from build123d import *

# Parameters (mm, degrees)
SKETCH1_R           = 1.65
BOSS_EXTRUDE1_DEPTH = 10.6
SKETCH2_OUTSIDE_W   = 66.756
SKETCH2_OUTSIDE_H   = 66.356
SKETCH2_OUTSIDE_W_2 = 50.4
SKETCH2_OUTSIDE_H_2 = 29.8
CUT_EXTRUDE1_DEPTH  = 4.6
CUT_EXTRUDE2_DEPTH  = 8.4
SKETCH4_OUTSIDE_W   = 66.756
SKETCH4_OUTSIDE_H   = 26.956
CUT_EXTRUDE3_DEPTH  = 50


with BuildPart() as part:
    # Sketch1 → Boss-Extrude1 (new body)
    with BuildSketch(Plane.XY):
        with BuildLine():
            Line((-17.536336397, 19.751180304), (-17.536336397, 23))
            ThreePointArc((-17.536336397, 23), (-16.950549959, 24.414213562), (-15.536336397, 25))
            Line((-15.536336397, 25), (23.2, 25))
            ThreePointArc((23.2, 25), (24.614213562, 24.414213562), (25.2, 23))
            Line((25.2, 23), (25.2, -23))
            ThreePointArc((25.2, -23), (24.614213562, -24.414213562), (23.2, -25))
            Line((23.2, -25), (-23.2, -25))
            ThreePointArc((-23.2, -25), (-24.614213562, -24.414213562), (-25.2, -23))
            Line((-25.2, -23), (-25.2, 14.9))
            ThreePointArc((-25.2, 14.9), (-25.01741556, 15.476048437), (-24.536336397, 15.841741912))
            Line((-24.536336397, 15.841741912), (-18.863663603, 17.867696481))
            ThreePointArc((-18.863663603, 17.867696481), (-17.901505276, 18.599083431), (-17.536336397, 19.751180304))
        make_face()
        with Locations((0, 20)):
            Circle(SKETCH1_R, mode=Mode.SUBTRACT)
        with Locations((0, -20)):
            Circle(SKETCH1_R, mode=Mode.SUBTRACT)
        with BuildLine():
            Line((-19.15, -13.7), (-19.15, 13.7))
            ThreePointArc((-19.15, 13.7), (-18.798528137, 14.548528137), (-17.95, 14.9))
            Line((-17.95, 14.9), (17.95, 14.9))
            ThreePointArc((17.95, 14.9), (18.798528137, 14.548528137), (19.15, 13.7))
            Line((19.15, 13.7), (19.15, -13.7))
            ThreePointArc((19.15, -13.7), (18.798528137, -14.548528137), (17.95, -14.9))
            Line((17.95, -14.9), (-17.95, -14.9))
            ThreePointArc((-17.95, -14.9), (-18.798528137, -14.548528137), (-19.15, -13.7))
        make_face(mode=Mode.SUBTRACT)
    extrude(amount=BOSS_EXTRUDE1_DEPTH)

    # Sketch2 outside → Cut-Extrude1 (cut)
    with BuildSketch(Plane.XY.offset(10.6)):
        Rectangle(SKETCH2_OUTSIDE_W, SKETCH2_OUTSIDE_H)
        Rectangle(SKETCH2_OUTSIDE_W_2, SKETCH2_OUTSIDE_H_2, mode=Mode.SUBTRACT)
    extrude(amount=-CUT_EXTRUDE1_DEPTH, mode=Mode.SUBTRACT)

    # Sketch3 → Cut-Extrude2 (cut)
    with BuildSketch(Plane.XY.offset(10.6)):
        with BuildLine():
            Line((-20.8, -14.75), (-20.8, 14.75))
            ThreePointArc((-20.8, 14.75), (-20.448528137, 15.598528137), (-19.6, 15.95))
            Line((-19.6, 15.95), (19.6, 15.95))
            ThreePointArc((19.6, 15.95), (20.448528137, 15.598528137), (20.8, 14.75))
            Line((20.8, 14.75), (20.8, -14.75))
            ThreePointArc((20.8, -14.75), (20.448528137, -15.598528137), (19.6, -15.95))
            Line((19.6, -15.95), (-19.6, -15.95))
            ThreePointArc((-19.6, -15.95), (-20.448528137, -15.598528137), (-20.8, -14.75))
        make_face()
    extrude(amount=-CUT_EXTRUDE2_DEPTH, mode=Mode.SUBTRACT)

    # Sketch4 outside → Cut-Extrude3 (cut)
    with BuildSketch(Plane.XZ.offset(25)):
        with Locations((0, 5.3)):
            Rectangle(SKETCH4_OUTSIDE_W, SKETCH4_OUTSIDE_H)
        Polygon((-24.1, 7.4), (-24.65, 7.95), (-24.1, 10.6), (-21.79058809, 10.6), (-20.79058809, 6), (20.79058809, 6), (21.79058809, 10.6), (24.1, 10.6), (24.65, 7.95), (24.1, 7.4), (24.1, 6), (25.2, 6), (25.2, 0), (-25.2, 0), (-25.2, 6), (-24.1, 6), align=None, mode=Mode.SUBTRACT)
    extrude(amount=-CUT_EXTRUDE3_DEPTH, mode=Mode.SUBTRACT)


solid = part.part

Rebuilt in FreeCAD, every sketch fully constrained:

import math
import FreeCAD as App
import Part
import Sketcher
from FreeCAD import Vector
Q = App.Units.Quantity


def add_polygon(sketch, points):
    """Adds a closed chain of lines whose ends are joined by coincident constraints."""
    first, n = sketch.GeometryCount, len(points)
    for a, b in zip(points, points[1:] + points[:1]):
        sketch.addGeometry(Part.LineSegment(App.Vector(*a, 0), App.Vector(*b, 0)), False)
    for i in range(n):
        sketch.addConstraint(Sketcher.Constraint("Coincident", first + i, 2, first + (i + 1) % n, 1))

doc = App.newDocument("Part")
params = doc.addObject("Spreadsheet::Sheet", "Params")
for row, (alias, value) in enumerate([
    ("sketch1_radius", "2 mm"),
    ("sketch1_radius2", "1 mm"),
    ("sketch1_diameter", "3.3 mm"),
    ("sketch1_radius3", "1.2 mm"),
    ("sketch1_height", "46 mm"),
    ("pad1_length", "10.6 mm"),
    ("sketch2_width", "50.4 mm"),
    ("sketch2_height", "29.8 mm"),
    ("pocket1_length", "4.6 mm"),
    ("sketch3_radius", "1.2 mm"),
    ("sketch3_width", "39.2 mm"),
    ("sketch3_height", "29.5 mm"),
    ("pocket2_length", "8.4 mm"),
    ("sketch4_height", "6 mm"),
    ("sketch4_width", "1.1 mm"),
    ("sketch4_width2", "50.4 mm"),
    ("sketch4_height2", "1.4 mm"),
    ("pocket3_length", "50 mm"),
], start=1):
    params.set(f"A{row}", alias)
    params.set(f"B{row}", "=" + value)
    params.setAlias(f"B{row}", alias)

body = doc.addObject("PartDesign::Body", "Body")

sketch1 = body.newObject("Sketcher::SketchObject", "Sketch")
sketch1.AttachmentSupport = (doc.getObject("XY_Plane"), [""])
sketch1.MapMode = "FlatFace"
sketch1.addGeometry(Part.LineSegment(Vector(-17.5, 23, 0), Vector(-17.5, 19.8, 0)), False)
sketch1.addGeometry(Part.ArcOfCircle(Part.Circle(Vector(-19.5, 19.8, 0), Vector(0, 0, 1), 2), math.radians(-70), math.radians(0)), False)
sketch1.addGeometry(Part.LineSegment(Vector(-18.9, 17.9, 0), Vector(-24.5, 15.8, 0)), False)
sketch1.addGeometry(Part.ArcOfCircle(Part.Circle(Vector(-24.2, 14.9, 0), Vector(0, 0, 1), 1), math.radians(110), math.radians(180)), False)
sketch1.addGeometry(Part.LineSegment(Vector(-25.2, 14.9, 0), Vector(-25.2, -23, 0)), False)
sketch1.addGeometry(Part.ArcOfCircle(Part.Circle(Vector(-23.2, -23, 0), Vector(0, 0, 1), 2), math.radians(-180), math.radians(-90)), False)
sketch1.addGeometry(Part.LineSegment(Vector(-23.2, -25, 0), Vector(23.2, -25, 0)), False)
sketch1.addGeometry(Part.ArcOfCircle(Part.Circle(Vector(23.2, -23, 0), Vector(0, 0, 1), 2), math.radians(-90), math.radians(0)), False)
sketch1.addGeometry(Part.LineSegment(Vector(25.2, -23, 0), Vector(25.2, 23, 0)), False)
sketch1.addGeometry(Part.ArcOfCircle(Part.Circle(Vector(23.2, 23, 0), Vector(0, 0, 1), 2), math.radians(0), math.radians(90)), False)
sketch1.addGeometry(Part.LineSegment(Vector(23.2, 25, 0), Vector(-15.5, 25, 0)), False)
sketch1.addGeometry(Part.ArcOfCircle(Part.Circle(Vector(-15.5, 23, 0), Vector(0, 0, 1), 2), math.radians(90), math.radians(180)), False)
sketch1.addGeometry(Part.Circle(Vector(0, -20, 0), Vector(0, 0, 1), 1.6), False)
sketch1.addGeometry(Part.LineSegment(Vector(-19.1, -13.7, 0), Vector(-19.1, 13.7, 0)), False)
sketch1.addGeometry(Part.ArcOfCircle(Part.Circle(Vector(-17.9, 13.7, 0), Vector(0, 0, 1), 1.2), math.radians(90), math.radians(180)), False)
sketch1.addGeometry(Part.LineSegment(Vector(-17.9, 14.9, 0), Vector(17.9, 14.9, 0)), False)
sketch1.addGeometry(Part.ArcOfCircle(Part.Circle(Vector(17.9, 13.7, 0), Vector(0, 0, 1), 1.2), math.radians(0), math.radians(90)), False)
sketch1.addGeometry(Part.LineSegment(Vector(19.1, 13.7, 0), Vector(19.1, -13.7, 0)), False)
sketch1.addGeometry(Part.ArcOfCircle(Part.Circle(Vector(17.9, -13.7, 0), Vector(0, 0, 1), 1.2), math.radians(-90), math.radians(0)), False)
sketch1.addGeometry(Part.LineSegment(Vector(17.9, -14.9, 0), Vector(-17.9, -14.9, 0)), False)
sketch1.addGeometry(Part.ArcOfCircle(Part.Circle(Vector(-17.9, -13.7, 0), Vector(0, 0, 1), 1.2), math.radians(-180), math.radians(-90)), False)
sketch1.addGeometry(Part.Circle(Vector(0, 20, 0), Vector(0, 0, 1), 1.6), False)
sketch1.addConstraint(Sketcher.Constraint("Tangent", 0, 2, 1, 2))
sketch1.addConstraint(Sketcher.Constraint("Tangent", 1, 1, 2, 1))
sketch1.addConstraint(Sketcher.Constraint("Tangent", 2, 2, 3, 1))
sketch1.addConstraint(Sketcher.Constraint("Tangent", 3, 2, 4, 1))
sketch1.addConstraint(Sketcher.Constraint("Tangent", 4, 2, 5, 1))
sketch1.addConstraint(Sketcher.Constraint("Tangent", 5, 2, 6, 1))
sketch1.addConstraint(Sketcher.Constraint("Tangent", 6, 2, 7, 1))
sketch1.addConstraint(Sketcher.Constraint("Tangent", 7, 2, 8, 1))
sketch1.addConstraint(Sketcher.Constraint("Tangent", 8, 2, 9, 1))
sketch1.addConstraint(Sketcher.Constraint("Tangent", 9, 2, 10, 1))
sketch1.addConstraint(Sketcher.Constraint("Tangent", 10, 2, 11, 1))
sketch1.addConstraint(Sketcher.Constraint("Tangent", 11, 2, 0, 1))
sketch1.addConstraint(Sketcher.Constraint("Tangent", 13, 2, 14, 2))
sketch1.addConstraint(Sketcher.Constraint("Tangent", 14, 1, 15, 1))
sketch1.addConstraint(Sketcher.Constraint("Tangent", 15, 2, 16, 2))
sketch1.addConstraint(Sketcher.Constraint("Tangent", 16, 1, 17, 1))
sketch1.addConstraint(Sketcher.Constraint("Tangent", 17, 2, 18, 2))
sketch1.addConstraint(Sketcher.Constraint("Tangent", 18, 1, 19, 1))
sketch1.addConstraint(Sketcher.Constraint("Tangent", 19, 2, 20, 2))
sketch1.addConstraint(Sketcher.Constraint("Tangent", 20, 1, 13, 1))
sketch1.addConstraint(Sketcher.Constraint("Vertical", 0))
sketch1.addConstraint(Sketcher.Constraint("Vertical", 4))
sketch1.addConstraint(Sketcher.Constraint("Horizontal", 6))
sketch1.addConstraint(Sketcher.Constraint("Vertical", 8))
sketch1.addConstraint(Sketcher.Constraint("Horizontal", 10))
sketch1.addConstraint(Sketcher.Constraint("Vertical", 13))
sketch1.addConstraint(Sketcher.Constraint("Horizontal", 15))
sketch1.addConstraint(Sketcher.Constraint("Vertical", 17))
sketch1.addConstraint(Sketcher.Constraint("Horizontal", 19))
sketch1.addConstraint(Sketcher.Constraint("Equal", 1, 5))
sketch1.addConstraint(Sketcher.Constraint("Equal", 5, 7))
sketch1.addConstraint(Sketcher.Constraint("Equal", 7, 9))
sketch1.addConstraint(Sketcher.Constraint("Equal", 9, 11))
sketch1.addConstraint(Sketcher.Constraint("Equal", 14, 16))
sketch1.addConstraint(Sketcher.Constraint("Equal", 16, 18))
sketch1.addConstraint(Sketcher.Constraint("Equal", 18, 20))
sketch1.addConstraint(Sketcher.Constraint("Equal", 12, 21))
sketch1.addConstraint(Sketcher.Constraint("Symmetric", 5, 3, 9, 3, -1, 1))
sketch1.addConstraint(Sketcher.Constraint("Symmetric", 14, 3, 18, 3, -1, 1))
sketch1.addConstraint(Sketcher.Constraint("Symmetric", 12, 3, 21, 3, -1, 1))
sketch1.addConstraint(Sketcher.Constraint("PointOnObject", 12, 3, -2))
sketch1.addConstraint(Sketcher.Constraint("Horizontal", 3, 2, 14, 1))
sketch1.addConstraint(Sketcher.Constraint("Radius", 1, Q("2 mm")))
sketch1.addConstraint(Sketcher.Constraint("Radius", 3, Q("1 mm")))
sketch1.addConstraint(Sketcher.Constraint("Diameter", 12, Q("3.3 mm")))
sketch1.addConstraint(Sketcher.Constraint("Radius", 14, Q("1.2 mm")))
sketch1.addConstraint(Sketcher.Constraint("DistanceY", 8, 1, 8, 2, Q("46 mm")))
sketch1.addConstraint(Sketcher.Constraint("DistanceX", 6, 1, 6, 2, Q("46.4 mm")))
sketch1.addConstraint(Sketcher.Constraint("DistanceX", 15, 1, 15, 2, Q("35.9 mm")))
sketch1.addConstraint(Sketcher.Constraint("DistanceY", 4, 2, 4, 1, Q("37.9 mm")))
sketch1.addConstraint(Sketcher.Constraint("DistanceY", 12, 3, -1, 1, Q("20 mm")))
sketch1.addConstraint(Sketcher.Constraint("DistanceX", 2, 2, 1, 3, Q("5 mm")))
sketch1.addConstraint(Sketcher.Constraint("DistanceY", 0, 2, 0, 1, Q("3.24882 mm")))
sketch1.setExpression("Constraints[42]", "Params.sketch1_radius")
sketch1.setExpression("Constraints[43]", "Params.sketch1_radius2")
sketch1.setExpression("Constraints[44]", "Params.sketch1_diameter")
sketch1.setExpression("Constraints[45]", "Params.sketch1_radius3")
sketch1.setExpression("Constraints[46]", "Params.sketch1_height")
pad1 = body.newObject("PartDesign::Pad", "Pad")
pad1.Profile = sketch1
pad1.setExpression("Length", "Params.pad1_length")

sketch2 = body.newObject("Sketcher::SketchObject", "Sketch001")
sketch2.AttachmentSupport = (doc.getObject("XY_Plane"), [""])
sketch2.MapMode = "FlatFace"
sketch2.AttachmentOffset = App.Placement(Vector(0, 0, 10.6), App.Rotation())
add_polygon(sketch2, [(-33, 33), (-33, -33), (33, -33), (33, 33)])
add_polygon(sketch2, [(25, -15), (-25, -15), (-25, 15), (25, 15)])
sketch2.addConstraint(Sketcher.Constraint("Vertical", 0))
sketch2.addConstraint(Sketcher.Constraint("Horizontal", 1))
sketch2.addConstraint(Sketcher.Constraint("Vertical", 2))
sketch2.addConstraint(Sketcher.Constraint("Horizontal", 3))
sketch2.addConstraint(Sketcher.Constraint("Horizontal", 4))
sketch2.addConstraint(Sketcher.Constraint("Vertical", 5))
sketch2.addConstraint(Sketcher.Constraint("Horizontal", 6))
sketch2.addConstraint(Sketcher.Constraint("Vertical", 7))
sketch2.addConstraint(Sketcher.Constraint("Symmetric", 0, 2, 2, 2, -1, 1))
sketch2.addConstraint(Sketcher.Constraint("Symmetric", 4, 2, 6, 2, -1, 1))
sketch2.addConstraint(Sketcher.Constraint("DistanceX", 4, 2, 4, 1, Q("50.4 mm")))
sketch2.addConstraint(Sketcher.Constraint("DistanceY", 5, 1, 5, 2, Q("29.8 mm")))
sketch2.addConstraint(Sketcher.Constraint("DistanceX", 1, 1, 1, 2, Q("66.756 mm")))
sketch2.addConstraint(Sketcher.Constraint("DistanceY", 0, 2, 0, 1, Q("66.356 mm")))
sketch2.setExpression("Constraints[18]", "Params.sketch2_width")
sketch2.setExpression("Constraints[19]", "Params.sketch2_height")
pocket1 = body.newObject("PartDesign::Pocket", "Pocket")
pocket1.Profile = sketch2
pocket1.setExpression("Length", "Params.pocket1_length")

sketch3 = body.newObject("Sketcher::SketchObject", "Sketch002")
sketch3.AttachmentSupport = (doc.getObject("XY_Plane"), [""])
sketch3.MapMode = "FlatFace"
sketch3.AttachmentOffset = App.Placement(Vector(0, 0, 10.6), App.Rotation())
sketch3.addGeometry(Part.LineSegment(Vector(-20.8, 14.8, 0), Vector(-20.8, -14.8, 0)), False)
sketch3.addGeometry(Part.ArcOfCircle(Part.Circle(Vector(-19.6, -14.7, 0), Vector(0, 0, 1), 1.2), math.radians(-180), math.radians(-90)), False)
sketch3.addGeometry(Part.LineSegment(Vector(-19.6, -15.9, 0), Vector(19.6, -15.9, 0)), False)
sketch3.addGeometry(Part.ArcOfCircle(Part.Circle(Vector(19.6, -14.7, 0), Vector(0, 0, 1), 1.2), math.radians(-90), math.radians(0)), False)
sketch3.addGeometry(Part.LineSegment(Vector(20.8, -14.8, 0), Vector(20.8, 14.8, 0)), False)
sketch3.addGeometry(Part.ArcOfCircle(Part.Circle(Vector(19.6, 14.7, 0), Vector(0, 0, 1), 1.2), math.radians(0), math.radians(90)), False)
sketch3.addGeometry(Part.LineSegment(Vector(19.6, 15.9, 0), Vector(-19.6, 15.9, 0)), False)
sketch3.addGeometry(Part.ArcOfCircle(Part.Circle(Vector(-19.6, 14.7, 0), Vector(0, 0, 1), 1.2), math.radians(90), math.radians(180)), False)
sketch3.addConstraint(Sketcher.Constraint("Tangent", 0, 2, 1, 1))
sketch3.addConstraint(Sketcher.Constraint("Tangent", 1, 2, 2, 1))
sketch3.addConstraint(Sketcher.Constraint("Tangent", 2, 2, 3, 1))
sketch3.addConstraint(Sketcher.Constraint("Tangent", 3, 2, 4, 1))
sketch3.addConstraint(Sketcher.Constraint("Tangent", 4, 2, 5, 1))
sketch3.addConstraint(Sketcher.Constraint("Tangent", 5, 2, 6, 1))
sketch3.addConstraint(Sketcher.Constraint("Tangent", 6, 2, 7, 1))
sketch3.addConstraint(Sketcher.Constraint("Tangent", 7, 2, 0, 1))
sketch3.addConstraint(Sketcher.Constraint("Vertical", 0))
sketch3.addConstraint(Sketcher.Constraint("Horizontal", 2))
sketch3.addConstraint(Sketcher.Constraint("Vertical", 4))
sketch3.addConstraint(Sketcher.Constraint("Horizontal", 6))
sketch3.addConstraint(Sketcher.Constraint("Equal", 1, 3))
sketch3.addConstraint(Sketcher.Constraint("Equal", 3, 5))
sketch3.addConstraint(Sketcher.Constraint("Equal", 5, 7))
sketch3.addConstraint(Sketcher.Constraint("Symmetric", 1, 3, 5, 3, -1, 1))
sketch3.addConstraint(Sketcher.Constraint("Radius", 1, Q("1.2 mm")))
sketch3.addConstraint(Sketcher.Constraint("DistanceX", 2, 1, 2, 2, Q("39.2 mm")))
sketch3.addConstraint(Sketcher.Constraint("DistanceY", 0, 2, 0, 1, Q("29.5 mm")))
sketch3.setExpression("Constraints[16]", "Params.sketch3_radius")
sketch3.setExpression("Constraints[17]", "Params.sketch3_width")
sketch3.setExpression("Constraints[18]", "Params.sketch3_height")
pocket2 = body.newObject("PartDesign::Pocket", "Pocket001")
pocket2.Profile = sketch3
pocket2.setExpression("Length", "Params.pocket2_length")

sketch4 = body.newObject("Sketcher::SketchObject", "Sketch003")
sketch4.AttachmentSupport = (doc.getObject("XZ_Plane"), [""])
sketch4.MapMode = "FlatFace"
sketch4.AttachmentOffset = App.Placement(Vector(0, 0, 25), App.Rotation())
add_polygon(sketch4, [(-33.4, 18.8), (-33.4, -8.2), (33.4, -8.2), (33.4, 18.8)])
add_polygon(sketch4, [(-24.1, 6), (-24.1, 7.4), (-24.6, 8), (-24.1, 10.6), (-21.8, 10.6), (-20.8, 6), (20.8, 6), (21.8, 10.6), (24.1, 10.6), (24.6, 8), (24.1, 7.4), (24.1, 6), (25.2, 6), (25.2, 0), (-25.2, 0), (-25.2, 6)])
sketch4.addConstraint(Sketcher.Constraint("Vertical", 0))
sketch4.addConstraint(Sketcher.Constraint("Horizontal", 1))
sketch4.addConstraint(Sketcher.Constraint("Vertical", 2))
sketch4.addConstraint(Sketcher.Constraint("Horizontal", 3))
sketch4.addConstraint(Sketcher.Constraint("Vertical", 4))
sketch4.addConstraint(Sketcher.Constraint("Horizontal", 7))
sketch4.addConstraint(Sketcher.Constraint("Horizontal", 9))
sketch4.addConstraint(Sketcher.Constraint("Horizontal", 11))
sketch4.addConstraint(Sketcher.Constraint("Vertical", 14))
sketch4.addConstraint(Sketcher.Constraint("Horizontal", 15))
sketch4.addConstraint(Sketcher.Constraint("Vertical", 16))
sketch4.addConstraint(Sketcher.Constraint("Horizontal", 17))
sketch4.addConstraint(Sketcher.Constraint("Vertical", 18))
sketch4.addConstraint(Sketcher.Constraint("Horizontal", 19))
sketch4.addConstraint(Sketcher.Constraint("Symmetric", 16, 2, 17, 2, -1, 1))
sketch4.addConstraint(Sketcher.Constraint("Symmetric", 7, 2, 10, 2, -2))
sketch4.addConstraint(Sketcher.Constraint("Symmetric", 5, 2, 12, 2, -2))
sketch4.addConstraint(Sketcher.Constraint("Symmetric", 4, 2, 13, 2, -2))
sketch4.addConstraint(Sketcher.Constraint("Perpendicular", 5, 13))
sketch4.addConstraint(Sketcher.Constraint("Horizontal", 9, 2, 14, 2))
sketch4.addConstraint(Sketcher.Constraint("Horizontal", 15, 2, 18, 2))
sketch4.addConstraint(Sketcher.Constraint("Vertical", 4, 2, 6, 2))
sketch4.addConstraint(Sketcher.Constraint("Vertical", 11, 2, 13, 2))
sketch4.addConstraint(Sketcher.Constraint("Equal", 8, 10))
sketch4.addConstraint(Sketcher.Constraint("DistanceY", 16, 2, 16, 1, Q("6 mm")))
sketch4.addConstraint(Sketcher.Constraint("DistanceX", 15, 1, 15, 2, Q("1.1 mm")))
sketch4.addConstraint(Sketcher.Constraint("DistanceX", 17, 2, 17, 1, Q("50.4 mm")))
sketch4.addConstraint(Sketcher.Constraint("DistanceY", 4, 1, 4, 2, Q("1.4 mm")))
sketch4.addConstraint(Sketcher.Constraint("DistanceX", 7, 2, 8, 2, Q("1 mm")))
sketch4.addConstraint(Sketcher.Constraint("DistanceY", -1, 1, 6, 2, Q("10.6 mm")))
sketch4.addConstraint(Sketcher.Constraint("DistanceX", 1, 1, 1, 2, Q("66.756 mm")))
sketch4.addConstraint(Sketcher.Constraint("DistanceY", 0, 2, 0, 1, Q("26.956 mm")))
sketch4.addConstraint(Sketcher.Constraint("DistanceX", 5, 2, -1, 1, Q("24.65 mm")))
sketch4.addConstraint(Sketcher.Constraint("DistanceX", 0, 2, -1, 1, Q("33.378 mm")))
sketch4.addConstraint(Sketcher.Constraint("DistanceY", 0, 2, -1, 1, Q("8.178 mm")))
sketch4.addConstraint(Sketcher.Constraint("DistanceX", 7, 1, 7, 2, Q("2.309412 mm")))
sketch4.setExpression("Constraints[44]", "Params.sketch4_height")
sketch4.setExpression("Constraints[45]", "Params.sketch4_width")
sketch4.setExpression("Constraints[46]", "Params.sketch4_width2")
sketch4.setExpression("Constraints[47]", "Params.sketch4_height2")
pocket3 = body.newObject("PartDesign::Pocket", "Pocket002")
pocket3.Profile = sketch4
pocket3.setExpression("Length", "Params.pocket3_length")

doc.recompute()
